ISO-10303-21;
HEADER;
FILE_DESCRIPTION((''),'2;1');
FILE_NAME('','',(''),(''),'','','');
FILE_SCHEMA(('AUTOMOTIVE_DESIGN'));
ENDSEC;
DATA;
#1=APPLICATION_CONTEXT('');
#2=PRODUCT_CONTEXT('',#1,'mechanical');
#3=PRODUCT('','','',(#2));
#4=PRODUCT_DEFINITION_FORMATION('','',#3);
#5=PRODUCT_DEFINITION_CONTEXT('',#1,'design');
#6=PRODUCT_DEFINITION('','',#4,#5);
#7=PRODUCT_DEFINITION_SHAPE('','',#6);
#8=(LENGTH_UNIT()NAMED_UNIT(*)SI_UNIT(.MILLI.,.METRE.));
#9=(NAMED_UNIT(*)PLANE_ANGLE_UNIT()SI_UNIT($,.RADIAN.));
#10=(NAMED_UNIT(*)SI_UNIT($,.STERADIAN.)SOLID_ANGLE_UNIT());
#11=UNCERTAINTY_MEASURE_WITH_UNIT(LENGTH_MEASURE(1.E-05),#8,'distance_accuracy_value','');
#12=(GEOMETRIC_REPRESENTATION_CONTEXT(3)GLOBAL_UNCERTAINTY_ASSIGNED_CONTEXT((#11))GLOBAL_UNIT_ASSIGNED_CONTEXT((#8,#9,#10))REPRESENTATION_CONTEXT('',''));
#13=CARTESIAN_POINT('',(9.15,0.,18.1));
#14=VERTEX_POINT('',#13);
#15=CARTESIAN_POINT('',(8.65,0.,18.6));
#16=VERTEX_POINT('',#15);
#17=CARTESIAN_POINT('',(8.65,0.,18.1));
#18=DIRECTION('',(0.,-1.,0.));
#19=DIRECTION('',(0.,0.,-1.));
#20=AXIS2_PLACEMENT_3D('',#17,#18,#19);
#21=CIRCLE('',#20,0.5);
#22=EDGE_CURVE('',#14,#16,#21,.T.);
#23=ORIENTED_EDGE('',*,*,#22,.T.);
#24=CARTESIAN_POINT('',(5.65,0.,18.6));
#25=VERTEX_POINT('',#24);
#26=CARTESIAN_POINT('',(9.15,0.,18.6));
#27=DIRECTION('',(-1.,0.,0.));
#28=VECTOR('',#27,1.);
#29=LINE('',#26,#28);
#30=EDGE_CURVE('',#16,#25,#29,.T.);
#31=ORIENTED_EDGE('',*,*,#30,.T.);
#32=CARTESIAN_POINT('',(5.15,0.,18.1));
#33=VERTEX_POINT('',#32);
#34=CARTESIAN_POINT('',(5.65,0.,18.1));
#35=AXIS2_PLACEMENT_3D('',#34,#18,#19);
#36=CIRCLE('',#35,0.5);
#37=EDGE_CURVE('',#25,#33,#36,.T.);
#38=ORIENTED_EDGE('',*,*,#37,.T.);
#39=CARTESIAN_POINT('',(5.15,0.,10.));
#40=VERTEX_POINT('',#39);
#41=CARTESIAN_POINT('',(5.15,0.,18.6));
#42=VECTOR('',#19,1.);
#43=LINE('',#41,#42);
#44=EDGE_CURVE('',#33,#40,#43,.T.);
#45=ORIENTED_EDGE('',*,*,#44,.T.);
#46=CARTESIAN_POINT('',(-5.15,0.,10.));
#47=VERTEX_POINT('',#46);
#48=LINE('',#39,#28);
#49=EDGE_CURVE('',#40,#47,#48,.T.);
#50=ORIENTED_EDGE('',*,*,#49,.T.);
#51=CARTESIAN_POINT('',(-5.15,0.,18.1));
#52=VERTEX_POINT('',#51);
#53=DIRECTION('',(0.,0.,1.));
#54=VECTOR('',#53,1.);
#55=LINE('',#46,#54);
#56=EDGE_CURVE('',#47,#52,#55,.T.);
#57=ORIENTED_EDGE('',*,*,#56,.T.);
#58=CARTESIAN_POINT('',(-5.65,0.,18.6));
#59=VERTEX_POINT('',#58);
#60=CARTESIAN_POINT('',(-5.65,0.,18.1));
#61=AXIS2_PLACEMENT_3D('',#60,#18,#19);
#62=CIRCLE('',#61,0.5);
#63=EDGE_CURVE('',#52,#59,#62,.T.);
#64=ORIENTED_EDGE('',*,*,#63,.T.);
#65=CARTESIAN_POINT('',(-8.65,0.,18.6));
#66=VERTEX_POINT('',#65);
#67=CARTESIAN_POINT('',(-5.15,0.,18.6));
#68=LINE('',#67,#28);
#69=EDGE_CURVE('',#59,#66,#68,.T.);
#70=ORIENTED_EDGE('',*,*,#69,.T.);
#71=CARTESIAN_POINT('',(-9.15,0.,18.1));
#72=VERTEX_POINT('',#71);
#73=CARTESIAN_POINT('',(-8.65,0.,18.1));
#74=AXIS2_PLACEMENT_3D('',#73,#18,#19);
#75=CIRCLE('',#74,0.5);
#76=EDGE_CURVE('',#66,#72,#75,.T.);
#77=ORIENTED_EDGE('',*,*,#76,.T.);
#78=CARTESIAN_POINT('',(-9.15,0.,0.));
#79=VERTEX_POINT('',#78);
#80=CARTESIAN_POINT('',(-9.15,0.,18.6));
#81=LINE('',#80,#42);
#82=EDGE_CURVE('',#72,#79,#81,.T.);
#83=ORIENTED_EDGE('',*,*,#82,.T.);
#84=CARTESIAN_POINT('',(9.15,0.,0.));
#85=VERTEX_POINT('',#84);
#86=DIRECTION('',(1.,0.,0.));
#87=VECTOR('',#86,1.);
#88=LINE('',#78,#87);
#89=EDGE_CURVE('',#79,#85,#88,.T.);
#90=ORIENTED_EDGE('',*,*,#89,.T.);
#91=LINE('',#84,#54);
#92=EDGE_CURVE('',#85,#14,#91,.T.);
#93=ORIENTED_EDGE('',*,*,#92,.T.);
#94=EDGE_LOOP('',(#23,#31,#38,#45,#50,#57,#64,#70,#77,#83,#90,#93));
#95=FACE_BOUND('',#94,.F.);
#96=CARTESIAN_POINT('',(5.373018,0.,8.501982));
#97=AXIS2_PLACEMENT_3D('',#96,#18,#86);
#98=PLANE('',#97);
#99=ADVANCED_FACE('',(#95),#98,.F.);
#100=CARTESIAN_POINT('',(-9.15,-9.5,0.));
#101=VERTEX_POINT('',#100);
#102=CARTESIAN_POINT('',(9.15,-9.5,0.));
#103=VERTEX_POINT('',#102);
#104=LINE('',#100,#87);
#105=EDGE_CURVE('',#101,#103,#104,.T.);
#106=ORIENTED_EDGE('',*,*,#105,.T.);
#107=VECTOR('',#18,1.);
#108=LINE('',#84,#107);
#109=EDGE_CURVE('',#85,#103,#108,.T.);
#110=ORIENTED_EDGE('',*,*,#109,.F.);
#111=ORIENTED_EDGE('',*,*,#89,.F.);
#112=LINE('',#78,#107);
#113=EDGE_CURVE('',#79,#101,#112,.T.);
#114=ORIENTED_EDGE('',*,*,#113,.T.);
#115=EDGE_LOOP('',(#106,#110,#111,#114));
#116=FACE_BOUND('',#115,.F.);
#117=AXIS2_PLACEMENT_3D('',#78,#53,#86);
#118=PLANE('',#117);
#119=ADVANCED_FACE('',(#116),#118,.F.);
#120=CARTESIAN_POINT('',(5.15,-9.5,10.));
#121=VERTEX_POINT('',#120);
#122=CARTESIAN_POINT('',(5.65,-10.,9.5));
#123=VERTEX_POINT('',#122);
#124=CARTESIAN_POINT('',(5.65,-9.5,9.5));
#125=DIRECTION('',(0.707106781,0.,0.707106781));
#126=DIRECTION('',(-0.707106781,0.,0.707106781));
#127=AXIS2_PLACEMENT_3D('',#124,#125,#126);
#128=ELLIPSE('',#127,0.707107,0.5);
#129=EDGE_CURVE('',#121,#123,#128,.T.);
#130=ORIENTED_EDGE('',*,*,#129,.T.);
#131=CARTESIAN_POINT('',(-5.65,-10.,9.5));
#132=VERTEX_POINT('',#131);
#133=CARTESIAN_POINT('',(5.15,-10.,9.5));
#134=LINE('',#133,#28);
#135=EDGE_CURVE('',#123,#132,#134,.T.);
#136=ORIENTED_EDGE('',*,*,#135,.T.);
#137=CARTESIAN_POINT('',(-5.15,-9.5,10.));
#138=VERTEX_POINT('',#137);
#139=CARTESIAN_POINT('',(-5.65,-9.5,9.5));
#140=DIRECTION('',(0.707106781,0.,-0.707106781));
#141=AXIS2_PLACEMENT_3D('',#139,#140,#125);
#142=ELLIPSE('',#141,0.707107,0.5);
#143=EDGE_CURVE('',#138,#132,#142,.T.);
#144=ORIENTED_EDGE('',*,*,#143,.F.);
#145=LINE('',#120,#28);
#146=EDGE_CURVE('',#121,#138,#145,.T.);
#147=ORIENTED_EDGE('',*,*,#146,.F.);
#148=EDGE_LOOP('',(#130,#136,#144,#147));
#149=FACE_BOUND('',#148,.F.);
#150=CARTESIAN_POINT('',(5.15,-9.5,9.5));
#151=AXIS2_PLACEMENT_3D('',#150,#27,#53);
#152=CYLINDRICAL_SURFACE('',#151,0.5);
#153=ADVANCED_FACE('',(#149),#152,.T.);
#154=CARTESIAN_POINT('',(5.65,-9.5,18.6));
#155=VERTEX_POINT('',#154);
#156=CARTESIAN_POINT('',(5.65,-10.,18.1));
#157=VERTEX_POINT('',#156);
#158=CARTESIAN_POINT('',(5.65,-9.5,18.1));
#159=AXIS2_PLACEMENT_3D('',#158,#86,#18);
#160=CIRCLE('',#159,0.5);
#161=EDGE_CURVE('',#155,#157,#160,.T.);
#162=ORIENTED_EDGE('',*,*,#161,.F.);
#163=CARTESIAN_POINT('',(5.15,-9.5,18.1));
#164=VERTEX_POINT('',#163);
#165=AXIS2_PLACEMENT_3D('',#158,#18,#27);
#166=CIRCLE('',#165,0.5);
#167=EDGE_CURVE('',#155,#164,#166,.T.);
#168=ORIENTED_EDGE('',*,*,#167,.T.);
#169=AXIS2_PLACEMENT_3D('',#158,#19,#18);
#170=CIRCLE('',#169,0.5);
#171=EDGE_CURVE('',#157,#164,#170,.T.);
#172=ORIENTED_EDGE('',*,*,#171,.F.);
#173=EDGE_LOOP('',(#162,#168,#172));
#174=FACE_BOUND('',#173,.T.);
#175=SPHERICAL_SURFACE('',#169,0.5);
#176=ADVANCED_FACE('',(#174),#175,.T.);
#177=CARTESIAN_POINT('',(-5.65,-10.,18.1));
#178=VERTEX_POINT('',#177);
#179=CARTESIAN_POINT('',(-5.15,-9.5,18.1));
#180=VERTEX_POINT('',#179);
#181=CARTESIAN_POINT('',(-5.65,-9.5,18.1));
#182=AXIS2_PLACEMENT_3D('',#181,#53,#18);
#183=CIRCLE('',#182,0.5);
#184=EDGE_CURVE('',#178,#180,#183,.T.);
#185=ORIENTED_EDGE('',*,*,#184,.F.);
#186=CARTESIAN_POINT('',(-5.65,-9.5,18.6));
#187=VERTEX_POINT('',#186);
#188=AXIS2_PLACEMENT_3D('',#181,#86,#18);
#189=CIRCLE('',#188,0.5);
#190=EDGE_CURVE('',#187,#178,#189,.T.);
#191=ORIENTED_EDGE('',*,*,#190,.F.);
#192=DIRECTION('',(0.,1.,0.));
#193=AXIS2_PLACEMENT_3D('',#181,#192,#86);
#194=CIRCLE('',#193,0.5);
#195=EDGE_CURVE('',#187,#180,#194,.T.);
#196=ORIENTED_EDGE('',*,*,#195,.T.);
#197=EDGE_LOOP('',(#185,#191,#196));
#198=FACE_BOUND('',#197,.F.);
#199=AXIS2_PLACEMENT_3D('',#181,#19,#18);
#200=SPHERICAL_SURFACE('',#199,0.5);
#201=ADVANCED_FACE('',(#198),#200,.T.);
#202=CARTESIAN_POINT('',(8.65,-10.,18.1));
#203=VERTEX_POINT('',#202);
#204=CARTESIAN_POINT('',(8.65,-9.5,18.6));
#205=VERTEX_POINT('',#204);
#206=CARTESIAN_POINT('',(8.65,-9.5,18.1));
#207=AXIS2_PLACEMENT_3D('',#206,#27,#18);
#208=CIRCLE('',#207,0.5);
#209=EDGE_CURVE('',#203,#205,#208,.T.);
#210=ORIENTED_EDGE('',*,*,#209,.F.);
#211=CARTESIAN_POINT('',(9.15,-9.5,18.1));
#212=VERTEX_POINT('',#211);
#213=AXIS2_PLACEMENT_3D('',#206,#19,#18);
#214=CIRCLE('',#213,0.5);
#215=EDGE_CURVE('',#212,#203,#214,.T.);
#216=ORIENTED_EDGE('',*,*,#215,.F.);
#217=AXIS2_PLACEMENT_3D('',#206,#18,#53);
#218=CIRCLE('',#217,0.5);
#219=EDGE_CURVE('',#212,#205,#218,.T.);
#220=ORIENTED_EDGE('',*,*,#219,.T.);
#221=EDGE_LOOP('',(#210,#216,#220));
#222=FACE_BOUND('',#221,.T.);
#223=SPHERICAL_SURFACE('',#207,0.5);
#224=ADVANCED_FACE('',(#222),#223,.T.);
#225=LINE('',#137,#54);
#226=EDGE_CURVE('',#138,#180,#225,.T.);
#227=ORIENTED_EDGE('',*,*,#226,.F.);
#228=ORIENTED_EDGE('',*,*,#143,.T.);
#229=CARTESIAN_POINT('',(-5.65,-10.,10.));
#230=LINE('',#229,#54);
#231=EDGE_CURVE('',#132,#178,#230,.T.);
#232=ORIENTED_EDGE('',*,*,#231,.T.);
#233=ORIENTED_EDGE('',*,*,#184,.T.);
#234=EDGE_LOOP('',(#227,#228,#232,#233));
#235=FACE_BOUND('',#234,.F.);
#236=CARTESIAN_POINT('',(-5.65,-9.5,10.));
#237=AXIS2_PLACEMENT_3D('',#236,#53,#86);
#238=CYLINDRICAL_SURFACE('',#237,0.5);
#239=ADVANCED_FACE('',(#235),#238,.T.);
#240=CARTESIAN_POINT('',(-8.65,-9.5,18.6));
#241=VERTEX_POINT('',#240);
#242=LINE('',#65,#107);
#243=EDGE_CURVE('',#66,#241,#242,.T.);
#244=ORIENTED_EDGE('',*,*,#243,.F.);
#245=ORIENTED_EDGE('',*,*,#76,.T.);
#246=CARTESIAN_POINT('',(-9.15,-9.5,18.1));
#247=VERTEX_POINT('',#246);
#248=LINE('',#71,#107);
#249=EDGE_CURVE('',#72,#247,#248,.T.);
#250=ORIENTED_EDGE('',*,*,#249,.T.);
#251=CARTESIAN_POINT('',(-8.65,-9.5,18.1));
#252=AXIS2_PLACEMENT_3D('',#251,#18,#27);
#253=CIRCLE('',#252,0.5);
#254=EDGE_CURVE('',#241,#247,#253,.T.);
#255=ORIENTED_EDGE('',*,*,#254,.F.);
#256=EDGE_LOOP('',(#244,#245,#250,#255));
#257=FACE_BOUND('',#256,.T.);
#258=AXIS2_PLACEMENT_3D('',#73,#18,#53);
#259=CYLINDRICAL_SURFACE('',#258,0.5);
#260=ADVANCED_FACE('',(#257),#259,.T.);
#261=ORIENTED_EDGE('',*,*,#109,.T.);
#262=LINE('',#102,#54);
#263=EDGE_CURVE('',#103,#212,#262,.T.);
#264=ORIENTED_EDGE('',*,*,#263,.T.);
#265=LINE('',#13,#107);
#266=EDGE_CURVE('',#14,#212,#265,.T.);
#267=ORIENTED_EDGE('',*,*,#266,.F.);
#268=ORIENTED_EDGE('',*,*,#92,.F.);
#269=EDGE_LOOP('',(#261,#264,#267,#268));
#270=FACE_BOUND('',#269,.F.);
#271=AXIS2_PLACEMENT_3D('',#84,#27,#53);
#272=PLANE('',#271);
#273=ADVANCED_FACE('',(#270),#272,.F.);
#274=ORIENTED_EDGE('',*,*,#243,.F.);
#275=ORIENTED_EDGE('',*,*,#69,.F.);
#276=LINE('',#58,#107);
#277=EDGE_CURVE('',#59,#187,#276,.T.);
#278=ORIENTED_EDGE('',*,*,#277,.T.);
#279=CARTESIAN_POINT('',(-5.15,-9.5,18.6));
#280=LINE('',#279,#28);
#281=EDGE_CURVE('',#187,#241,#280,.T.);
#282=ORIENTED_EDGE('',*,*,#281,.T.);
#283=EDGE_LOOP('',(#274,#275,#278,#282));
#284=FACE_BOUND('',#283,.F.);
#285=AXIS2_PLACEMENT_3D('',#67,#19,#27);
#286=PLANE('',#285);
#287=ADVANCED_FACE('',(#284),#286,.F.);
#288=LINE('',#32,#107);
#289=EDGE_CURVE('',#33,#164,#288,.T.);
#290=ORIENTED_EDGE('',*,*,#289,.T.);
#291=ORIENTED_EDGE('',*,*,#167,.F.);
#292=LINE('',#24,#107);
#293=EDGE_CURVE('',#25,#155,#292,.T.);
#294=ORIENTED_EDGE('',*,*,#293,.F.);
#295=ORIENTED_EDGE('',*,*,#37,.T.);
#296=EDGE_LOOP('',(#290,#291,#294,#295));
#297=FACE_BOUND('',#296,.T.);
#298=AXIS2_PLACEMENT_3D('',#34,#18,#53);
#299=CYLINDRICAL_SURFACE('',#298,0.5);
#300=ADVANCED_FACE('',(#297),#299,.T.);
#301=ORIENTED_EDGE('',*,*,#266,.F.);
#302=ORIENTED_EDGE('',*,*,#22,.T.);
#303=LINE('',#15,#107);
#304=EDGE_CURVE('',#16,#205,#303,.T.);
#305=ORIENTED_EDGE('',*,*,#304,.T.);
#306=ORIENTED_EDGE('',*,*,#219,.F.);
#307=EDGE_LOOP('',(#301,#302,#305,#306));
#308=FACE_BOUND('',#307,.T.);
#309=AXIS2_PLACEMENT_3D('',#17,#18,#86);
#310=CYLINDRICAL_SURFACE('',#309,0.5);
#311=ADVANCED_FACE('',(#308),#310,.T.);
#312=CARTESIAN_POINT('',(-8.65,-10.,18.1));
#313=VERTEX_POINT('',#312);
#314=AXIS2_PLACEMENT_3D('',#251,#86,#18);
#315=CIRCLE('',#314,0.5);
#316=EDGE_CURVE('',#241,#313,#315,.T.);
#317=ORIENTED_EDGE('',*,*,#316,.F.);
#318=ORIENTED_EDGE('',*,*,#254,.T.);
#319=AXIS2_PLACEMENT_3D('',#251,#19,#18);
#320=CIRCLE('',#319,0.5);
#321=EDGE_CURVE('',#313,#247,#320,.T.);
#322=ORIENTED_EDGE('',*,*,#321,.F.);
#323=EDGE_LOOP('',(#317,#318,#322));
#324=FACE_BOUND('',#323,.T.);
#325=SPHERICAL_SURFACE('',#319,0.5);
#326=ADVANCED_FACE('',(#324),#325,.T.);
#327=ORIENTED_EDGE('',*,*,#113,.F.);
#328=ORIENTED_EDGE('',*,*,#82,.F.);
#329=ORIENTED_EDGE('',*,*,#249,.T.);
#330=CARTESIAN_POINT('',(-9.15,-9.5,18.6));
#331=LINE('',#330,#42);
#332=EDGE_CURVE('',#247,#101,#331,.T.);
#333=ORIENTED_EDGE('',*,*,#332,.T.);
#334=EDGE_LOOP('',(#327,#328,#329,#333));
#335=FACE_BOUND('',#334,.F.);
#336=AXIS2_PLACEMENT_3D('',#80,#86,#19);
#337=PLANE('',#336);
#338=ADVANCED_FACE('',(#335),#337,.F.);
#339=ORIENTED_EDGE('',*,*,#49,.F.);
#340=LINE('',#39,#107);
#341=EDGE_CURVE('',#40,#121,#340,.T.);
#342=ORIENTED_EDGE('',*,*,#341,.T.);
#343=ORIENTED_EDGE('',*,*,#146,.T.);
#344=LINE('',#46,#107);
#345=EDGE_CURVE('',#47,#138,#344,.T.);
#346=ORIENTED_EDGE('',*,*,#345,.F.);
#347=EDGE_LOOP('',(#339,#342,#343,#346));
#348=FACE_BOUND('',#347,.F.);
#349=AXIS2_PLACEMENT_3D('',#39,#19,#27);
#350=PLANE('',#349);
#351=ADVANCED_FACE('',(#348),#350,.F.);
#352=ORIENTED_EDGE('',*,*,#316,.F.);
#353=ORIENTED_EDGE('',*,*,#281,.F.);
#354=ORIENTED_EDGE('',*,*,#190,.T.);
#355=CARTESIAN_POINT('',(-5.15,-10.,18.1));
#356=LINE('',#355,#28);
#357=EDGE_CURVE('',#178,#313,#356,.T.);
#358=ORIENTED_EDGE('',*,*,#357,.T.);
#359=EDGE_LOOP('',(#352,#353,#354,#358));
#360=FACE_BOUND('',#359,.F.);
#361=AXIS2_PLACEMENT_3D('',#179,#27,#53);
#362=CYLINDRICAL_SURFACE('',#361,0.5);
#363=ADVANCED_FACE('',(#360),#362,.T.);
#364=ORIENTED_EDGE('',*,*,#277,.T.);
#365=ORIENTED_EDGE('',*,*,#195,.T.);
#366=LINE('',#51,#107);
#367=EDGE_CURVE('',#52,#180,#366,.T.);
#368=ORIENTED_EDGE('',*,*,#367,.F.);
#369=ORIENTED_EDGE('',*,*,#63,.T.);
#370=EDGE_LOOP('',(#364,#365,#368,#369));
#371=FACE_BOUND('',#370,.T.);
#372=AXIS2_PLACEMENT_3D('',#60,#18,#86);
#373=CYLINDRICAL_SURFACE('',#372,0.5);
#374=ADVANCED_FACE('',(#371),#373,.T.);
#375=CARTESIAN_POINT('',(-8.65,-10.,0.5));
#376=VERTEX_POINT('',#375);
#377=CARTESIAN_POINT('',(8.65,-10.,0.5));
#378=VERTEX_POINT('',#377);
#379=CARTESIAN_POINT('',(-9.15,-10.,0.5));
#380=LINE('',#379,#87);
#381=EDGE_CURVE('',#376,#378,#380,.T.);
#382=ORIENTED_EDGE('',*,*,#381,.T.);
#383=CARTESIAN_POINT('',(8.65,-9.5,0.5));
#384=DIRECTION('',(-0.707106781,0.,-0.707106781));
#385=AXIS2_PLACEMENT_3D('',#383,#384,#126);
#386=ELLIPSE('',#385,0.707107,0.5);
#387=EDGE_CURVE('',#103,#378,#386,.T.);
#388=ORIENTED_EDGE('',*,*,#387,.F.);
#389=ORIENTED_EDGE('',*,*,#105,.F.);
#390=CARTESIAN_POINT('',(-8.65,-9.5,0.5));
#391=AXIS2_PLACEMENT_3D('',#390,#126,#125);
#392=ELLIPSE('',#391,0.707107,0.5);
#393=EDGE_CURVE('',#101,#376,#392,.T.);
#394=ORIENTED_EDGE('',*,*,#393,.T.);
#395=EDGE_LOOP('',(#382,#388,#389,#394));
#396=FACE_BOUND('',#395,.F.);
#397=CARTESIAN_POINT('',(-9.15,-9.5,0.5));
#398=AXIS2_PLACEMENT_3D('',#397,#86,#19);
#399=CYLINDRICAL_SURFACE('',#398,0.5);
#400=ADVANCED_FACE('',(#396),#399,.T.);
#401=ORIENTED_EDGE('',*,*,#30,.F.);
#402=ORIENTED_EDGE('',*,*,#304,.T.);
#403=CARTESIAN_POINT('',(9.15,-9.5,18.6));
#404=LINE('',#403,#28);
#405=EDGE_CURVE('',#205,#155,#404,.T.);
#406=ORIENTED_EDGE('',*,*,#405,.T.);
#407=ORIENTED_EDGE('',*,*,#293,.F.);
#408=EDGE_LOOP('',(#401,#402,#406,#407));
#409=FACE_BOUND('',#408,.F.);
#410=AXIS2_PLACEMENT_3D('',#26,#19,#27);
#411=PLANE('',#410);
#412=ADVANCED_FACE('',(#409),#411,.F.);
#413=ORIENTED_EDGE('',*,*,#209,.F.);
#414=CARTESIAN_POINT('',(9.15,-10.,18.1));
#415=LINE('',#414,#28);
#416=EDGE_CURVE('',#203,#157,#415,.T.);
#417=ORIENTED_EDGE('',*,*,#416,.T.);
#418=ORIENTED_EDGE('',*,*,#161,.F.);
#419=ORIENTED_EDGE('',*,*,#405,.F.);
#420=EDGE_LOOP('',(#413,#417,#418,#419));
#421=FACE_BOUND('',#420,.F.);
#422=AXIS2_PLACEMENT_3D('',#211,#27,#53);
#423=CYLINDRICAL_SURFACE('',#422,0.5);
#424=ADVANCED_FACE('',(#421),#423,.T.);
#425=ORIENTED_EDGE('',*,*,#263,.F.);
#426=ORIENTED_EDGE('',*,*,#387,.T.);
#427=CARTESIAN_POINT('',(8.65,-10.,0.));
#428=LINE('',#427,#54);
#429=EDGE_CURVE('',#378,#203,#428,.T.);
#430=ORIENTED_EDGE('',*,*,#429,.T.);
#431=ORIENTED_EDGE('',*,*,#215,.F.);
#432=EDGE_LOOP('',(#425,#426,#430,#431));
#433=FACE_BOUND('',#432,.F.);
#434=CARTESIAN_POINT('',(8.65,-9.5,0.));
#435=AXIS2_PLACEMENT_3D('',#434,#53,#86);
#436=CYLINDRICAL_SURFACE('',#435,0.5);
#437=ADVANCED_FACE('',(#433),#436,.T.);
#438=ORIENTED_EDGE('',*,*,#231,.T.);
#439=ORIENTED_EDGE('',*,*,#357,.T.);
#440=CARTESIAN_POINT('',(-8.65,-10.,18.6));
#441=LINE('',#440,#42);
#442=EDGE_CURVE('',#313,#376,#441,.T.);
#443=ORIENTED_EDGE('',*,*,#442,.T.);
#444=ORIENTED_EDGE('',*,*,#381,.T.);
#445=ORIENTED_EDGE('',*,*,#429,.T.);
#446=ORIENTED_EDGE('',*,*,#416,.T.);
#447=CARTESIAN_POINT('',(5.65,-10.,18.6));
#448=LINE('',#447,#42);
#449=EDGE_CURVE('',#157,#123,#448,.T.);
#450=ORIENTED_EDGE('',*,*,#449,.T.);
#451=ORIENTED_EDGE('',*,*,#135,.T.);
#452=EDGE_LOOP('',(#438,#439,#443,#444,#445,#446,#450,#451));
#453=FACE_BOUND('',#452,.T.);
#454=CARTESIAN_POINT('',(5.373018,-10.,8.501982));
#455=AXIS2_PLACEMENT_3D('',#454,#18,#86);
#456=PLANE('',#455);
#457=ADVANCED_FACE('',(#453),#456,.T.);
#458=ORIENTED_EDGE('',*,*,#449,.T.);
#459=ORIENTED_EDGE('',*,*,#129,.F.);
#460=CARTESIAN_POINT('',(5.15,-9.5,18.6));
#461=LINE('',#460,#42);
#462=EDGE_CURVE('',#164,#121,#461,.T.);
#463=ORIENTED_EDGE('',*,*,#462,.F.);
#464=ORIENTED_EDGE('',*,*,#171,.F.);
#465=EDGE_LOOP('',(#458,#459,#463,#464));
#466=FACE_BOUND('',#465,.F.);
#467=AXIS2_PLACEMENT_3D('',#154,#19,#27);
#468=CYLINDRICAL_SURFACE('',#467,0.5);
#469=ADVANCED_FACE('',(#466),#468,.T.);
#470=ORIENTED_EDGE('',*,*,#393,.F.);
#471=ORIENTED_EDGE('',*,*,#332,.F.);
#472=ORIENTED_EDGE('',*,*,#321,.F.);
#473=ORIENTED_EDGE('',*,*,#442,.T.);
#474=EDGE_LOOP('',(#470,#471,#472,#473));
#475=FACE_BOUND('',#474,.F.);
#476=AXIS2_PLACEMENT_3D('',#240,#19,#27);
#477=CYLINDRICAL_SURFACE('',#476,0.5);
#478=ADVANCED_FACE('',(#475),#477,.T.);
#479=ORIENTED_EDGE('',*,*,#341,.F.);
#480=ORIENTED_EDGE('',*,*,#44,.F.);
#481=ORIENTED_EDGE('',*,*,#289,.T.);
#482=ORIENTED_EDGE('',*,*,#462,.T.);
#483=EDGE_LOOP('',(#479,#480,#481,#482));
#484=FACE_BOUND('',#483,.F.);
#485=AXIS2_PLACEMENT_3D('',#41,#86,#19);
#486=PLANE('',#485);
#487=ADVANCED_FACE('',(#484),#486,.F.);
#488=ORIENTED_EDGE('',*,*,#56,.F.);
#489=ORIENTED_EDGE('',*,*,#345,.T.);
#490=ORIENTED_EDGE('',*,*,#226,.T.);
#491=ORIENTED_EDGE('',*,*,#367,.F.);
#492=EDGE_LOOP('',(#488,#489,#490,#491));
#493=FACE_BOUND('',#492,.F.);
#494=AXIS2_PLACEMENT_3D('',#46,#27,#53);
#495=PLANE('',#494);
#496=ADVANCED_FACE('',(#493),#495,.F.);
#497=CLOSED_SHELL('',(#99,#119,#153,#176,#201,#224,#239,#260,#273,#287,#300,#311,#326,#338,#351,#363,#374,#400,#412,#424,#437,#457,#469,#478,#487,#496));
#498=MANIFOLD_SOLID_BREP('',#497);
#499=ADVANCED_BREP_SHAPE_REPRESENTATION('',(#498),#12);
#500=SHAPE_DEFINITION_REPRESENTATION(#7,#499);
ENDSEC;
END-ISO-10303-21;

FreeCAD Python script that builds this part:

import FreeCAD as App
import Part
import Sketcher
Q = App.Units.Quantity


def edges_at(feature, points):
    """Names of the edges that pass closest to the given points."""
    edges = feature.Shape.Edges
    near = lambda p: min(range(len(edges)), key=lambda i: edges[i].distToShape(Part.Vertex(*p))[0])
    return sorted({f"Edge{near(p) + 1}" for p in points})


def add_polygon(sketch, points):
    """Adds a closed chain of lines whose ends are joined by coincident constraints."""
    first, n = sketch.GeometryCount, len(points)
    for a, b in zip(points, points[1:] + points[:1]):
        sketch.addGeometry(Part.LineSegment(App.Vector(*a, 0), App.Vector(*b, 0)), False)
    for i in range(n):
        sketch.addConstraint(Sketcher.Constraint("Coincident", first + i, 2, first + (i + 1) % n, 1))

doc = App.newDocument("Part")
body = doc.addObject("PartDesign::Body", "Body")

sketch1 = doc.addObject("Sketcher::SketchObject", "Sketch")
body.addObject(sketch1)
sketch1.AttachmentSupport = (doc.XZ_Plane, [""])
sketch1.MapMode = "FlatFace"
add_polygon(sketch1, [(9.2, 0), (9.2, 18.6), (5.2, 18.6), (5.2, 10), (-5.2, 10), (-5.2, 18.6), (-9.2, 18.6), (-9.2, 0)])
sketch1.addConstraint([
    Sketcher.Constraint("Vertical", 0),
    Sketcher.Constraint("Horizontal", 1),
    Sketcher.Constraint("Vertical", 2),
    Sketcher.Constraint("Horizontal", 3),
    Sketcher.Constraint("Vertical", 4),
    Sketcher.Constraint("Horizontal", 5),
    Sketcher.Constraint("Vertical", 6),
    Sketcher.Constraint("Horizontal", 7),
    Sketcher.Constraint("Symmetric", 6, 2, 7, 2, -1, 1),
    Sketcher.Constraint("Symmetric", 1, 2, 4, 2, -2),
    Sketcher.Constraint("DistanceX", 1, 2, 1, 1, Q("4 mm")),
    Sketcher.Constraint("DistanceX", 3, 2, 3, 1, Q("10.3 mm")),
    Sketcher.Constraint("DistanceY", 0, 1, 0, 2, Q("18.6 mm")),
    Sketcher.Constraint("DistanceY", 2, 2, 2, 1, Q("8.6 mm")),
])
pad1 = doc.addObject("PartDesign::Pad", "Pad")
body.addObject(pad1)
pad1.Profile = sketch1
pad1.Length = 10
doc.recompute()

fillet = doc.addObject("PartDesign::Fillet", "Fillet")
body.addObject(fillet)
fillet.Base = (pad1, edges_at(pad1, [
    (-5.15, -10, 14.3),
    (0, -10, 10),
    (5.15, -10, 14.3),
    (7.15, -10, 18.6),
    (9.15, -10, 9.3),
    (0, -10, 0),
    (-9.15, -10, 9.3),
    (-7.15, -10, 18.6),
    (5.15, -5, 18.6),
    (9.15, -5, 18.6),
    (-5.15, -5, 18.6),
    (-9.15, -5, 18.6),
]))
fillet.Radius = 0.5

doc.recompute()
